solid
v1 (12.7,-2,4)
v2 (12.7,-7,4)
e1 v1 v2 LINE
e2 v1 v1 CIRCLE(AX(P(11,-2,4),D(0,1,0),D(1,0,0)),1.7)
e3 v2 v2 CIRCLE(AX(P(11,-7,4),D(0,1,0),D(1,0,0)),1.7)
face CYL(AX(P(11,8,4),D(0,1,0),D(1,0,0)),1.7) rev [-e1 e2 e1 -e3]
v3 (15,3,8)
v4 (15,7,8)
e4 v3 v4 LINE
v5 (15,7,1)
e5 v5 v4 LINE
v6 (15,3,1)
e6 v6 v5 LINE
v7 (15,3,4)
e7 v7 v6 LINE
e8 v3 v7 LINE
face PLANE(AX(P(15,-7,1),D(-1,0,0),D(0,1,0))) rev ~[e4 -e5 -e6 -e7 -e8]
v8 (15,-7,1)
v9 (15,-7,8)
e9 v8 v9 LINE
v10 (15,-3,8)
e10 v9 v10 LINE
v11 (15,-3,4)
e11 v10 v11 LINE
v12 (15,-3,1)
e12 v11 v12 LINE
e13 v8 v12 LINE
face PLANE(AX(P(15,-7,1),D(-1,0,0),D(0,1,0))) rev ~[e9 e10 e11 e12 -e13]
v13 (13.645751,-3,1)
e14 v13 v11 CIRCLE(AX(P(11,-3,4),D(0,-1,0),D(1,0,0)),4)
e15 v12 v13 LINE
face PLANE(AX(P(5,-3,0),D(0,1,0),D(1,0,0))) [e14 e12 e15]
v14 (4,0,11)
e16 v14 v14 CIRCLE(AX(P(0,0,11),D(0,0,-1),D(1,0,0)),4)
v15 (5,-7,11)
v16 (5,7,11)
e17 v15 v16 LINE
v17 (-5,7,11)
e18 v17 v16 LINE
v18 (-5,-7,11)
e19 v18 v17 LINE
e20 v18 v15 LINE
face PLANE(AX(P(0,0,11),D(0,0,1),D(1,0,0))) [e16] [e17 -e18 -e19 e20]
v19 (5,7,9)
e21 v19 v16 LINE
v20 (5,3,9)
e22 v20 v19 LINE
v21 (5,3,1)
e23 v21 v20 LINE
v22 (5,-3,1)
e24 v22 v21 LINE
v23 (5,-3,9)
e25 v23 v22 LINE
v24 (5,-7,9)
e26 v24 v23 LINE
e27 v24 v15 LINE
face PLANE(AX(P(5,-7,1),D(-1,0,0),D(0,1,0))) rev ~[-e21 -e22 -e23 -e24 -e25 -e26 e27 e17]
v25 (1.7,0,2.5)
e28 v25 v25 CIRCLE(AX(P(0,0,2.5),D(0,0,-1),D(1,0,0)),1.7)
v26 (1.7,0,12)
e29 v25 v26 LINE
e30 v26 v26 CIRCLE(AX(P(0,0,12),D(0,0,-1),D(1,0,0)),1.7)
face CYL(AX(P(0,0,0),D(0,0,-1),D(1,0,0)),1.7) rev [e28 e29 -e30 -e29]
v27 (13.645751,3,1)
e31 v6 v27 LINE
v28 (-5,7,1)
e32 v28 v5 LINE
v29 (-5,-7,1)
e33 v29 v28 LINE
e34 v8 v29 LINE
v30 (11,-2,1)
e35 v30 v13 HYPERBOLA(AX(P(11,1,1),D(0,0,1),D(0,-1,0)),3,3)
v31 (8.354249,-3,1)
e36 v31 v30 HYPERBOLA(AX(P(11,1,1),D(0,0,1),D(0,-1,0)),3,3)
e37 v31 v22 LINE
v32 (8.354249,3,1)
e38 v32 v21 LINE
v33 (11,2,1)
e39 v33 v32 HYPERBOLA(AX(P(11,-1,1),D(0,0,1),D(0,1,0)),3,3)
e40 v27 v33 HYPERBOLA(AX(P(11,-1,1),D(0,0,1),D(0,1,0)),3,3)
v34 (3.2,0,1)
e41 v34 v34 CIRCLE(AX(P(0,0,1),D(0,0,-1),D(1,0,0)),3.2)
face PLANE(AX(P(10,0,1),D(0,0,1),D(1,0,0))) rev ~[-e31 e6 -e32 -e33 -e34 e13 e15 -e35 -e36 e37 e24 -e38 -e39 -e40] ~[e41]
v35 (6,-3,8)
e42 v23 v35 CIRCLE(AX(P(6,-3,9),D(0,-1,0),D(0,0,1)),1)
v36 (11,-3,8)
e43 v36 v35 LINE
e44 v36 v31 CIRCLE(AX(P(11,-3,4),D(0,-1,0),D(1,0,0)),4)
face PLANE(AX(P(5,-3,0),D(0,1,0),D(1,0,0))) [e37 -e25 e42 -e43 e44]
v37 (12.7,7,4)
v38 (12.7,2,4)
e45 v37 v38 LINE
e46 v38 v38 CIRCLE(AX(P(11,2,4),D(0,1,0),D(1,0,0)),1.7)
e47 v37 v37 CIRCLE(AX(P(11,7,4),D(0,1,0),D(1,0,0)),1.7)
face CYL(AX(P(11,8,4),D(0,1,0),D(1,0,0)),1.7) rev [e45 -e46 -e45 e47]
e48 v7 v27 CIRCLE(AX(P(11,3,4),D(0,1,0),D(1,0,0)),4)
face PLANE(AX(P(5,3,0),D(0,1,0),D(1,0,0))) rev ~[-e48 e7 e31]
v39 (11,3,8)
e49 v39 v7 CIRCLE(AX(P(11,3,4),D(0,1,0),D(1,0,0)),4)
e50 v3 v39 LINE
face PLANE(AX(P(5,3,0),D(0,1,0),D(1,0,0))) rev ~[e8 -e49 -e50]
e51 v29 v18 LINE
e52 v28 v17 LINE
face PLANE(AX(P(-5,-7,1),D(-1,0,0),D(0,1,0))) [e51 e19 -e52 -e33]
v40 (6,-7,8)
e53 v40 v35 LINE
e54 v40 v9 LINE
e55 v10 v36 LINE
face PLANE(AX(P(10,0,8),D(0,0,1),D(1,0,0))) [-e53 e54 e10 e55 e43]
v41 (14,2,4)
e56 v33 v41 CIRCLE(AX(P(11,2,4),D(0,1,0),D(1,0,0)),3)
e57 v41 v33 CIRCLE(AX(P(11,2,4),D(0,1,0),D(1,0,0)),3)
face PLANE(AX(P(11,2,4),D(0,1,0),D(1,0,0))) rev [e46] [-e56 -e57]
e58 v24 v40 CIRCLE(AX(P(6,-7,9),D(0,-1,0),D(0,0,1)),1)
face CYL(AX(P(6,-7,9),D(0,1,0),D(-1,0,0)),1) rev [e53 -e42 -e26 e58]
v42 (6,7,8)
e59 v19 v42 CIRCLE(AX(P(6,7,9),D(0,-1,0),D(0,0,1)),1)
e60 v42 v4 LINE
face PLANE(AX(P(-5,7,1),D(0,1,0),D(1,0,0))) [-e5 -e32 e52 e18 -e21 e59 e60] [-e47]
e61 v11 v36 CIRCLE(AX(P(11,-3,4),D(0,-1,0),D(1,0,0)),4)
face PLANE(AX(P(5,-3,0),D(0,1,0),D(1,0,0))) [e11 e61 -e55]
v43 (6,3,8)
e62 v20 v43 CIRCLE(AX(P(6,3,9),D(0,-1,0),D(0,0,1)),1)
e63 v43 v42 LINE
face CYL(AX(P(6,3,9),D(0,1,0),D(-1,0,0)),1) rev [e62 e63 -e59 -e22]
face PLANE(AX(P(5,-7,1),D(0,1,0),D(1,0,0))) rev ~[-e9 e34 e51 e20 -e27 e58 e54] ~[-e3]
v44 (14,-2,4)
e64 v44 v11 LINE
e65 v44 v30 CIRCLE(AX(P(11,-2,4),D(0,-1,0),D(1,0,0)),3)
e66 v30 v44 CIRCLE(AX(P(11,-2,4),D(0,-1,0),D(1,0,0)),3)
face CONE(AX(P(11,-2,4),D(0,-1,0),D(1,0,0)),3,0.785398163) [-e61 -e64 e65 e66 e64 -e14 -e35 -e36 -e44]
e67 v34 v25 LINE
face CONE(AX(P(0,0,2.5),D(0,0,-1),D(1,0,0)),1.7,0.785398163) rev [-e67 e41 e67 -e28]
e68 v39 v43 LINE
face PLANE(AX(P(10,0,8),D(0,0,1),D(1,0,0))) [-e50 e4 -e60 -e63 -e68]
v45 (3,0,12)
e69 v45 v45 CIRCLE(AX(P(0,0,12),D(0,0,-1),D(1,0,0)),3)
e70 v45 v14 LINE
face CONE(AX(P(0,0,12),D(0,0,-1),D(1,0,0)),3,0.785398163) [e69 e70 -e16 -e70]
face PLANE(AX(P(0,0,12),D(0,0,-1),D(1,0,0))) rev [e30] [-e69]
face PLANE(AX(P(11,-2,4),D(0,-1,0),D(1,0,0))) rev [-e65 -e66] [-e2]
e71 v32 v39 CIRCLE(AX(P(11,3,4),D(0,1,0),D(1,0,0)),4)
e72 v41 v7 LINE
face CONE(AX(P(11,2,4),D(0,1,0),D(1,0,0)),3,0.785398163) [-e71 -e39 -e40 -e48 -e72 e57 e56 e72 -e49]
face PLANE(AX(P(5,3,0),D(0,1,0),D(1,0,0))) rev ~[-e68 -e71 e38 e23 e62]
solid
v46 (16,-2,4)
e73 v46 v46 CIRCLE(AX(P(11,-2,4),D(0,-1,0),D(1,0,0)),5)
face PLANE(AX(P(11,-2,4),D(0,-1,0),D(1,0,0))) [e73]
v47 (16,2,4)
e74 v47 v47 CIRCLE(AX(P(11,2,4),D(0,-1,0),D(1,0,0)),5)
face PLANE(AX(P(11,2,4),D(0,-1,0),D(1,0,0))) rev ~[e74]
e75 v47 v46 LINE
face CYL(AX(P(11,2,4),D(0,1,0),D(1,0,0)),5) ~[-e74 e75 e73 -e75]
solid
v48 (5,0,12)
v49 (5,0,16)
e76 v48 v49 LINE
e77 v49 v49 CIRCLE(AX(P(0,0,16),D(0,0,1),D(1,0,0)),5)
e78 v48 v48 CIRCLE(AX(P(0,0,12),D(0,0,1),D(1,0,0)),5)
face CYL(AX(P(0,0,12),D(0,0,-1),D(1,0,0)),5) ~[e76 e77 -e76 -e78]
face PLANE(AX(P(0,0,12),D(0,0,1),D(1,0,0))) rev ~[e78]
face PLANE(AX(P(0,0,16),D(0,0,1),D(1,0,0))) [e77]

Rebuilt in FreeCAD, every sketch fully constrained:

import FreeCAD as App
import Part
import Sketcher


def edges_at(feature, points):
    """Names of the edges that pass closest to the given points."""
    edges = feature.Shape.Edges
    near = lambda p: min(range(len(edges)), key=lambda i: edges[i].distToShape(Part.Vertex(*p))[0])
    return sorted({f"Edge{near(p) + 1}" for p in points})


def add_polygon(sketch, points):
    """Adds a closed chain of lines whose ends are joined by coincident constraints."""
    first, n = sketch.GeometryCount, len(points)
    for a, b in zip(points, points[1:] + points[:1]):
        sketch.addGeometry(Part.LineSegment(App.Vector(*a, 0), App.Vector(*b, 0)), False)
    for i in range(n):
        sketch.addConstraint(Sketcher.Constraint("Coincident", first + i, 2, first + (i + 1) % n, 1))

doc = App.newDocument("Part")
body = doc.addObject("PartDesign::Body", "Body")

# Sketch on XY plane
sketch1 = doc.addObject("Sketcher::SketchObject", "Sketch")
body.addObject(sketch1)
sketch1.AttachmentSupport = (doc.XY_Plane, [""])
sketch1.MapMode = "FlatFace"
sketch1.AttachmentOffset = App.Placement(App.Vector(0, 0, 12), App.Rotation())
sketch1.addGeometry(Part.Circle(App.Vector(0, 0, 0), App.Vector(0, 0, 1), 5), False)
sketch1.addConstraint(Sketcher.Constraint("Coincident", 0, 3, -1, 1))
sketch1.addConstraint(Sketcher.Constraint("Diameter", 0, 10.0))
pad1 = doc.addObject("PartDesign::Pad", "Pad")
body.addObject(pad1)
pad1.Profile = sketch1
pad1.Length = 4
body2 = doc.addObject("PartDesign::Body", "Body001")

# Sketch on XZ plane
sketch2 = doc.addObject("Sketcher::SketchObject", "Sketch001")
body2.addObject(sketch2)
sketch2.AttachmentSupport = (doc.getObject("XZ_Plane001"), [""])
sketch2.MapMode = "FlatFace"
sketch2.AttachmentOffset = App.Placement(App.Vector(0, 0, -2), App.Rotation())
sketch2.addGeometry(Part.Circle(App.Vector(11, 4, 0), App.Vector(0, 0, 1), 5), False)
sketch2.addConstraint(Sketcher.Constraint("Diameter", 0, 10.0))
sketch2.addConstraint(Sketcher.Constraint("DistanceX", -1, 1, 0, 3, 11.0))
sketch2.addConstraint(Sketcher.Constraint("DistanceY", -1, 1, 0, 3, 4.0))
pad2 = doc.addObject("PartDesign::Pad", "Pad001")
body2.addObject(pad2)
pad2.Profile = sketch2
pad2.Length = 4
body3 = doc.addObject("PartDesign::Body", "Body002")

# Sketch on XZ plane
sketch3 = doc.addObject("Sketcher::SketchObject", "Sketch002")
body3.addObject(sketch3)
sketch3.AttachmentSupport = (doc.getObject("XZ_Plane002"), [""])
sketch3.MapMode = "FlatFace"
sketch3.AttachmentOffset = App.Placement(App.Vector(0, 0, -8), App.Rotation())
sketch3.addGeometry(Part.Circle(App.Vector(11, 4, 0), App.Vector(0, 0, 1), 1.7), False)
sketch3.addConstraint(Sketcher.Constraint("Diameter", 0, 3.4))
sketch3.addConstraint(Sketcher.Constraint("DistanceX", -1, 1, 0, 3, 11.0))
sketch3.addConstraint(Sketcher.Constraint("DistanceY", -1, 1, 0, 3, 4.0))
pad3 = doc.addObject("PartDesign::Pad", "Pad002")
body3.addObject(pad3)
pad3.Profile = sketch3
pad3.Length = 18
body4 = doc.addObject("PartDesign::Body", "Body003")

# Sketch on XY plane
sketch4 = doc.addObject("Sketcher::SketchObject", "Sketch003")
body4.addObject(sketch4)
sketch4.AttachmentSupport = (doc.getObject("XY_Plane003"), [""])
sketch4.MapMode = "FlatFace"
add_polygon(sketch4, [(5, 3), (5, -3), (16, -3), (16, 3)])  # lines 0-3
sketch4.addConstraint(Sketcher.Constraint("Vertical", 0))
sketch4.addConstraint(Sketcher.Constraint("Horizontal", 1))
sketch4.addConstraint(Sketcher.Constraint("Vertical", 2))
sketch4.addConstraint(Sketcher.Constraint("Horizontal", 3))
sketch4.addConstraint(Sketcher.Constraint("DistanceX", 1, 1, 1, 2, 11.0))
sketch4.addConstraint(Sketcher.Constraint("DistanceY", 0, 2, 0, 1, 6.0))
sketch4.addConstraint(Sketcher.Constraint("DistanceX", -1, 1, 0, 2, 5.0))
sketch4.addConstraint(Sketcher.Constraint("DistanceY", 0, 2, -1, 1, 3.0))
pad4 = doc.addObject("PartDesign::Pad", "Pad003")
body4.addObject(pad4)
pad4.Profile = sketch4
pad4.Length = 10
body5 = doc.addObject("PartDesign::Body", "Body004")
body5.AllowCompound = True

# Sketch on XY plane
sketch5 = doc.addObject("Sketcher::SketchObject", "Sketch004")
body5.addObject(sketch5)
sketch5.AttachmentSupport = (doc.getObject("XY_Plane004"), [""])
sketch5.MapMode = "FlatFace"
sketch5.AttachmentOffset = App.Placement(App.Vector(0, 0, 1), App.Rotation())
add_polygon(sketch5, [(5, 7), (5, -7), (15, -7), (15, 7)])  # lines 0-3
sketch5.addConstraint(Sketcher.Constraint("Vertical", 0))
sketch5.addConstraint(Sketcher.Constraint("Horizontal", 1))
sketch5.addConstraint(Sketcher.Constraint("Vertical", 2))
sketch5.addConstraint(Sketcher.Constraint("Horizontal", 3))
sketch5.addConstraint(Sketcher.Constraint("DistanceX", 1, 1, 1, 2, 10.0))
sketch5.addConstraint(Sketcher.Constraint("DistanceY", 0, 2, 0, 1, 14.0))
sketch5.addConstraint(Sketcher.Constraint("DistanceX", -1, 1, 0, 2, 5.0))
sketch5.addConstraint(Sketcher.Constraint("DistanceY", 0, 2, -1, 1, 7.0))
pad5 = doc.addObject("PartDesign::Pad", "Pad004")
body5.addObject(pad5)
pad5.Profile = sketch5
pad5.Length = 7
doc.recompute()

boolean = doc.addObject("PartDesign::Boolean", "Boolean")
body5.addObject(boolean)
boolean.Type = "Cut"
boolean.addObjects([body4])
body6 = doc.addObject("PartDesign::Body", "Body005")

# Sketch on XY plane
sketch6 = doc.addObject("Sketcher::SketchObject", "Sketch005")
body6.addObject(sketch6)
sketch6.AttachmentSupport = (doc.getObject("XY_Plane005"), [""])
sketch6.MapMode = "FlatFace"
sketch6.AttachmentOffset = App.Placement(App.Vector(0, 0, -9), App.Rotation())
add_polygon(sketch6, [(5, 5), (5, -5), (15, -5), (15, 5)])  # lines 0-3
sketch6.addConstraint(Sketcher.Constraint("Vertical", 0))
sketch6.addConstraint(Sketcher.Constraint("Horizontal", 1))
sketch6.addConstraint(Sketcher.Constraint("Vertical", 2))
sketch6.addConstraint(Sketcher.Constraint("Horizontal", 3))
sketch6.addConstraint(Sketcher.Constraint("Equal", 3, 0))
sketch6.addConstraint(Sketcher.Constraint("DistanceX", 1, 1, 1, 2, 10.0))
sketch6.addConstraint(Sketcher.Constraint("DistanceX", -1, 1, 0, 2, 5.0))
sketch6.addConstraint(Sketcher.Constraint("DistanceY", 0, 2, -1, 1, 5.0))
pad6 = doc.addObject("PartDesign::Pad", "Pad005")
body6.addObject(pad6)
pad6.Profile = sketch6
pad6.Length = 10
body7 = doc.addObject("PartDesign::Body", "Body006")

# Sketch on XY plane
sketch7 = doc.addObject("Sketcher::SketchObject", "Sketch006")
body7.addObject(sketch7)
sketch7.AttachmentSupport = (doc.getObject("XY_Plane006"), [""])
sketch7.MapMode = "FlatFace"
sketch7.AttachmentOffset = App.Placement(App.Vector(0, 0, 4), App.Rotation())
add_polygon(sketch7, [(11, 2), (14, 2), (15, 3), (11, 3)])  # lines 0-3
sketch7.addGeometry(Part.LineSegment(App.Vector(11, 2, 0), App.Vector(11, 3, 0)), True)  # axis
sketch7.addConstraint(Sketcher.Constraint("Horizontal", 0))
sketch7.addConstraint(Sketcher.Constraint("Horizontal", 2))
sketch7.addConstraint(Sketcher.Constraint("Vertical", 3))
sketch7.addConstraint(Sketcher.Constraint("Vertical", 4))
sketch7.addConstraint(Sketcher.Constraint("Coincident", 4, 1, 3, 2))
sketch7.addConstraint(Sketcher.Constraint("Horizontal", 1, 2, 4, 2))
sketch7.addConstraint(Sketcher.Constraint("DistanceX", 0, 1, 0, 2, 3.0))
sketch7.addConstraint(Sketcher.Constraint("DistanceX", 2, 2, 2, 1, 4.0))
sketch7.addConstraint(Sketcher.Constraint("DistanceY", 3, 2, 3, 1, 1.0))
sketch7.addConstraint(Sketcher.Constraint("DistanceX", -1, 1, 0, 2, 14.0))
sketch7.addConstraint(Sketcher.Constraint("DistanceY", -1, 1, 0, 2, 2.0))
revolution = doc.addObject("PartDesign::Revolution", "Revolution")
body7.addObject(revolution)
revolution.Profile = sketch7
revolution.ReferenceAxis = (sketch7, ["Axis0"])
revolution.Angle = 360
body8 = doc.addObject("PartDesign::Body", "Body007")
body8.AllowCompound = True

# Sketch on XY plane
sketch8 = doc.addObject("Sketcher::SketchObject", "Sketch007")
body8.addObject(sketch8)
sketch8.AttachmentSupport = (doc.getObject("XY_Plane007"), [""])
sketch8.MapMode = "FlatFace"
sketch8.AttachmentOffset = App.Placement(App.Vector(0, 0, 4), App.Rotation())
add_polygon(sketch8, [(11, -2), (14, -2), (15, -3), (11, -3)])  # lines 0-3
sketch8.addGeometry(Part.LineSegment(App.Vector(11, -2, 0), App.Vector(11, -3, 0)), True)  # axis
sketch8.addConstraint(Sketcher.Constraint("Horizontal", 0))
sketch8.addConstraint(Sketcher.Constraint("Horizontal", 2))
sketch8.addConstraint(Sketcher.Constraint("Vertical", 3))
sketch8.addConstraint(Sketcher.Constraint("Vertical", 4))
sketch8.addConstraint(Sketcher.Constraint("Coincident", 4, 1, 3, 2))
sketch8.addConstraint(Sketcher.Constraint("Horizontal", 1, 2, 4, 2))
sketch8.addConstraint(Sketcher.Constraint("DistanceX", 0, 1, 0, 2, 3.0))
sketch8.addConstraint(Sketcher.Constraint("DistanceX", 2, 2, 2, 1, 4.0))
sketch8.addConstraint(Sketcher.Constraint("DistanceY", 3, 1, 3, 2, 1.0))
sketch8.addConstraint(Sketcher.Constraint("DistanceX", -1, 1, 0, 2, 14.0))
sketch8.addConstraint(Sketcher.Constraint("DistanceY", 0, 2, -1, 1, 2.0))
revolution2 = doc.addObject("PartDesign::Revolution", "Revolution001")
body8.addObject(revolution2)
revolution2.Profile = sketch8
revolution2.ReferenceAxis = (sketch8, ["Axis0"])
revolution2.Angle = 360
doc.recompute()

boolean2 = doc.addObject("PartDesign::Boolean", "Boolean001")
body8.addObject(boolean2)
boolean2.Type = "Fuse"
boolean2.addObjects([body7])
doc.recompute()

boolean3 = doc.addObject("PartDesign::Boolean", "Boolean002")
body8.addObject(boolean3)
boolean3.Type = "Cut"
boolean3.addObjects([body6])
doc.recompute()

boolean4 = doc.addObject("PartDesign::Boolean", "Boolean003")
body8.addObject(boolean4)
boolean4.Type = "Fuse"
boolean4.addObjects([body5])
doc.recompute()

boolean5 = doc.addObject("PartDesign::Boolean", "Boolean004")
body8.addObject(boolean5)
boolean5.Type = "Cut"
boolean5.addObjects([body3])
body9 = doc.addObject("PartDesign::Body", "Body008")

# Sketch on XY plane
sketch9 = doc.addObject("Sketcher::SketchObject", "Sketch008")
body9.addObject(sketch9)
sketch9.AttachmentSupport = (doc.getObject("XY_Plane008"), [""])
sketch9.MapMode = "FlatFace"
sketch9.addGeometry(Part.Circle(App.Vector(0, 0, 0), App.Vector(0, 0, 1), 1.7), False)
sketch9.addConstraint(Sketcher.Constraint("Coincident", 0, 3, -1, 1))
sketch9.addConstraint(Sketcher.Constraint("Diameter", 0, 3.4))
pad7 = doc.addObject("PartDesign::Pad", "Pad006")
body9.addObject(pad7)
pad7.Profile = sketch9
pad7.Length = 14
body10 = doc.addObject("PartDesign::Body", "Body009")

# Sketch on XZ plane
sketch10 = doc.addObject("Sketcher::SketchObject", "Sketch009")
body10.addObject(sketch10)
sketch10.AttachmentSupport = (doc.getObject("XZ_Plane009"), [""])
sketch10.MapMode = "FlatFace"
add_polygon(sketch10, [(0, 12), (3, 12), (4, 11), (0, 11)])  # lines 0-3
sketch10.addConstraint(Sketcher.Constraint("Horizontal", 0))
sketch10.addConstraint(Sketcher.Constraint("Horizontal", 2))
sketch10.addConstraint(Sketcher.Constraint("Vertical", 3))
sketch10.addConstraint(Sketcher.Constraint("PointOnObject", 2, 2, -2))
sketch10.addConstraint(Sketcher.Constraint("DistanceX", 0, 1, 0, 2, 3.0))
sketch10.addConstraint(Sketcher.Constraint("DistanceX", 2, 2, 2, 1, 4.0))
sketch10.addConstraint(Sketcher.Constraint("DistanceY", 3, 1, 3, 2, 1.0))
sketch10.addConstraint(Sketcher.Constraint("DistanceY", -1, 1, 0, 2, 12.0))
revolution3 = doc.addObject("PartDesign::Revolution", "Revolution002")
body10.addObject(revolution3)
revolution3.Profile = sketch10
revolution3.ReferenceAxis = (sketch10, ["V_Axis"])
revolution3.Angle = 360
body11 = doc.addObject("PartDesign::Body", "Body010")

# Sketch on XY plane
sketch11 = doc.addObject("Sketcher::SketchObject", "Sketch010")
body11.addObject(sketch11)
sketch11.AttachmentSupport = (doc.getObject("XY_Plane010"), [""])
sketch11.MapMode = "FlatFace"
sketch11.AttachmentOffset = App.Placement(App.Vector(0, 0, 1), App.Rotation())
add_polygon(sketch11, [(-5, 7), (-5, -7), (5, -7), (5, 7)])  # lines 0-3
sketch11.addConstraint(Sketcher.Constraint("Vertical", 0))
sketch11.addConstraint(Sketcher.Constraint("Horizontal", 1))
sketch11.addConstraint(Sketcher.Constraint("Vertical", 2))
sketch11.addConstraint(Sketcher.Constraint("Horizontal", 3))
sketch11.addConstraint(Sketcher.Constraint("Symmetric", 0, 2, 2, 2, -1, 1))
sketch11.addConstraint(Sketcher.Constraint("DistanceX", 1, 1, 1, 2, 10.0))
sketch11.addConstraint(Sketcher.Constraint("DistanceY", 0, 2, 0, 1, 14.0))
pad8 = doc.addObject("PartDesign::Pad", "Pad007")
body11.addObject(pad8)
pad8.Profile = sketch11
pad8.Length = 10
doc.recompute()

boolean6 = doc.addObject("PartDesign::Boolean", "Boolean005")
body11.addObject(boolean6)
boolean6.Type = "Fuse"
boolean6.addObjects([body10])
doc.recompute()

boolean7 = doc.addObject("PartDesign::Boolean", "Boolean006")
body11.addObject(boolean7)
boolean7.Type = "Cut"
boolean7.addObjects([body9])
doc.recompute()

boolean8 = doc.addObject("PartDesign::Boolean", "Boolean007")
body11.addObject(boolean8)
boolean8.Type = "Fuse"
boolean8.addObjects([body8])
doc.recompute()

chamfer = doc.addObject("PartDesign::Chamfer", "Chamfer")
body11.addObject(chamfer)
chamfer.Base = (boolean8, edges_at(boolean8, [(-1.7, 0, 1)]))
chamfer.Size = 1.5
doc.recompute()

fillet = doc.addObject("PartDesign::Fillet", "Fillet")
body11.addObject(fillet)
fillet.Base = (chamfer, edges_at(chamfer, [(5, 5, 8), (5, -5, 8)]))
fillet.Radius = 1

doc.recompute()
